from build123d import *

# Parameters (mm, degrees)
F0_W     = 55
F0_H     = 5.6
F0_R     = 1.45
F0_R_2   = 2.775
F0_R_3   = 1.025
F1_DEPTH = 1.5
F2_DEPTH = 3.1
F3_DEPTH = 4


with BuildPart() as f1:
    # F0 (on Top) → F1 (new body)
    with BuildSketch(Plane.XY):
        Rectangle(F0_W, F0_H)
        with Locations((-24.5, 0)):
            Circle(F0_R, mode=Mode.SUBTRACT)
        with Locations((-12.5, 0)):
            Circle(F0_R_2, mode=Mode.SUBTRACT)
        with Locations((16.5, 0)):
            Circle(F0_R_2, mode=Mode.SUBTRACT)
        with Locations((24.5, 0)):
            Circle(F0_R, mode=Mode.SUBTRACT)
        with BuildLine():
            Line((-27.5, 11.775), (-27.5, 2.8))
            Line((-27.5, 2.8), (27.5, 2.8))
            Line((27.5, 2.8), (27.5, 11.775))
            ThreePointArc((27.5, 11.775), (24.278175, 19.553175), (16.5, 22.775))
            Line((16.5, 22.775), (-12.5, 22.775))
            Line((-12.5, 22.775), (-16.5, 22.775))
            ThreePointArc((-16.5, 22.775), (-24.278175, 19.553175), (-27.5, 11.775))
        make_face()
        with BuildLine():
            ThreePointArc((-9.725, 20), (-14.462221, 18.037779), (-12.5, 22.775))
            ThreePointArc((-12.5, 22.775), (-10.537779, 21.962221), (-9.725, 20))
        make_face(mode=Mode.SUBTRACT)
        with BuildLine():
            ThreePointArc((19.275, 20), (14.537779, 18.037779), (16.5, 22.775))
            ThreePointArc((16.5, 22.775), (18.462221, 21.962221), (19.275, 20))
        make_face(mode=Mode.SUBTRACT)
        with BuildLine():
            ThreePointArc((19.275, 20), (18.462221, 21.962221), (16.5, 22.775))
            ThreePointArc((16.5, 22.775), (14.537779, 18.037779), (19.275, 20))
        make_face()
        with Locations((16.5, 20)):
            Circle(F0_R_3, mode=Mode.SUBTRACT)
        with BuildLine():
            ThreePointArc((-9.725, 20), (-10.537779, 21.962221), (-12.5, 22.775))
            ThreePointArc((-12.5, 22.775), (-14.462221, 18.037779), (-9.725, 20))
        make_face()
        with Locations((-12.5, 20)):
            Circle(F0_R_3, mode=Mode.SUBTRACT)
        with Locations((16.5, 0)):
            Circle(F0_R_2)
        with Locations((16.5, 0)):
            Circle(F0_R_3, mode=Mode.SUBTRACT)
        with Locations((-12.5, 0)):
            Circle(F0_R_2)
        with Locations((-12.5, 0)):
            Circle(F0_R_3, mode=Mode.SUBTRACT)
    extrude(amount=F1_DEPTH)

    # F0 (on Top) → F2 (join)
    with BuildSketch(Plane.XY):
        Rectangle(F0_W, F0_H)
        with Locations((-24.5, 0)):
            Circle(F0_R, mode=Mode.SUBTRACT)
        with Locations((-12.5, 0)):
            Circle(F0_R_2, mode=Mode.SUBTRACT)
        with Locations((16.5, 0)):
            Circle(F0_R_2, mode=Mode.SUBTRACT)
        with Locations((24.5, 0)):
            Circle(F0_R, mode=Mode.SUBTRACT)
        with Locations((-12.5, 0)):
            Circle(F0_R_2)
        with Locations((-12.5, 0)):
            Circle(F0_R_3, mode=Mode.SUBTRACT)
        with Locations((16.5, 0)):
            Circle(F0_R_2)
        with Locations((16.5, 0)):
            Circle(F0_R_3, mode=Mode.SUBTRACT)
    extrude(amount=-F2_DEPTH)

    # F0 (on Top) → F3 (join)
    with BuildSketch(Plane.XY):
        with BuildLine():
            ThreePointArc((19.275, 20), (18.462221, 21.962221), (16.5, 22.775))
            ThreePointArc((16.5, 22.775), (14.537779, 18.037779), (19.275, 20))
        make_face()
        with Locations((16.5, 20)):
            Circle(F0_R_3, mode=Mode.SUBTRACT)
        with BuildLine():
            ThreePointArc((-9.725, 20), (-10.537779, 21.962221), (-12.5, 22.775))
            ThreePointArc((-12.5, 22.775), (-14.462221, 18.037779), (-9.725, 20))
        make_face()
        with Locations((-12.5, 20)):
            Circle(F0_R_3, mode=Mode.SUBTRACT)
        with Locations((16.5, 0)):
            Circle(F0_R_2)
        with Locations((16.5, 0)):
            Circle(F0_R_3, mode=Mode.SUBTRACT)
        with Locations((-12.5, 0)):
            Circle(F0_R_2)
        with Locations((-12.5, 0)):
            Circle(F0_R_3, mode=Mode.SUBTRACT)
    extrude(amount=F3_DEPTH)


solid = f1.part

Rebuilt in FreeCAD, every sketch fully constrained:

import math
import FreeCAD as App
import Part
import Sketcher
from FreeCAD import Vector

doc = App.newDocument("Part")
body = doc.addObject("PartDesign::Body", "Body")

sketch1 = body.newObject("Sketcher::SketchObject", "Sketch")
sketch1.AttachmentSupport = (doc.getObject("XY_Plane"), [""])
sketch1.MapMode = "FlatFace"
sketch1.addGeometry(Part.ArcOfCircle(Part.Circle(Vector(16.5, 11.8, 0), Vector(0, 0, 1), 11), math.radians(0), math.radians(90)), False)
sketch1.addGeometry(Part.LineSegment(Vector(16.5, 22.8, 0), Vector(-16.5, 22.8, 0)), False)
sketch1.addGeometry(Part.ArcOfCircle(Part.Circle(Vector(-16.5, 11.8, 0), Vector(0, 0, 1), 11), math.radians(90), math.radians(180)), False)
sketch1.addGeometry(Part.LineSegment(Vector(-27.5, 11.8, 0), Vector(-27.5, -2.8, 0)), False)
sketch1.addGeometry(Part.LineSegment(Vector(-27.5, -2.8, 0), Vector(27.5, -2.8, 0)), False)
sketch1.addGeometry(Part.LineSegment(Vector(27.5, -2.8, 0), Vector(27.5, 11.8, 0)), False)
sketch1.addGeometry(Part.Circle(Vector(-24.5, 0, 0), Vector(0, 0, 1), 1.4), False)
sketch1.addGeometry(Part.Circle(Vector(-12.5, 0, 0), Vector(0, 0, 1), 1), False)
sketch1.addGeometry(Part.Circle(Vector(16.5, 0, 0), Vector(0, 0, 1), 1), False)
sketch1.addGeometry(Part.Circle(Vector(24.5, 0, 0), Vector(0, 0, 1), 1.4), False)
sketch1.addGeometry(Part.Circle(Vector(-12.5, 20, 0), Vector(0, 0, 1), 1), False)
sketch1.addGeometry(Part.Circle(Vector(16.5, 20, 0), Vector(0, 0, 1), 1), False)
sketch1.addConstraint(Sketcher.Constraint("Tangent", 0, 2, 1, 1))
sketch1.addConstraint(Sketcher.Constraint("Tangent", 1, 2, 2, 1))
sketch1.addConstraint(Sketcher.Constraint("Tangent", 2, 2, 3, 1))
sketch1.addConstraint(Sketcher.Constraint("Coincident", 3, 2, 4, 1))
sketch1.addConstraint(Sketcher.Constraint("Coincident", 4, 2, 5, 1))
sketch1.addConstraint(Sketcher.Constraint("Tangent", 5, 2, 0, 1))
sketch1.addConstraint(Sketcher.Constraint("Horizontal", 1))
sketch1.addConstraint(Sketcher.Constraint("Vertical", 3))
sketch1.addConstraint(Sketcher.Constraint("Horizontal", 4))
sketch1.addConstraint(Sketcher.Constraint("Vertical", 5))
sketch1.addConstraint(Sketcher.Constraint("Equal", 0, 2))
sketch1.addConstraint(Sketcher.Constraint("Equal", 7, 8))
sketch1.addConstraint(Sketcher.Constraint("Equal", 6, 9))
sketch1.addConstraint(Sketcher.Constraint("Equal", 8, 10))
sketch1.addConstraint(Sketcher.Constraint("Equal", 10, 11))
sketch1.addConstraint(Sketcher.Constraint("Symmetric", 6, 3, 9, 3, -1, 1))
sketch1.addConstraint(Sketcher.Constraint("PointOnObject", 6, 3, -1))
sketch1.addConstraint(Sketcher.Constraint("PointOnObject", 7, 3, -1))
sketch1.addConstraint(Sketcher.Constraint("PointOnObject", 8, 3, -1))
sketch1.addConstraint(Sketcher.Constraint("Horizontal", 10, 3, 11, 3))
sketch1.addConstraint(Sketcher.Constraint("Vertical", 0, 3, 8, 3))
sketch1.addConstraint(Sketcher.Constraint("Vertical", 7, 3, 10, 3))
sketch1.addConstraint(Sketcher.Constraint("Vertical", 8, 3, 11, 3))
sketch1.addConstraint(Sketcher.Constraint("Radius", 0, 10.999999))
sketch1.addConstraint(Sketcher.Constraint("Diameter", 6, 2.9))
sketch1.addConstraint(Sketcher.Constraint("Diameter", 7, 2.05))
sketch1.addConstraint(Sketcher.Constraint("DistanceX", 1, 2, 1, 1, 33.0))
sketch1.addConstraint(Sketcher.Constraint("DistanceY", -1, 1, 10, 3, 20.0))
sketch1.addConstraint(Sketcher.Constraint("DistanceX", 6, 3, 2, 3, 7.999999))
sketch1.addConstraint(Sketcher.Constraint("DistanceX", 6, 3, 7, 3, 12.0))
sketch1.addConstraint(Sketcher.Constraint("DistanceX", 8, 3, 9, 3, 8.0))
sketch1.addConstraint(Sketcher.Constraint("DistanceY", 3, 2, -1, 1, 2.8))
sketch1.addConstraint(Sketcher.Constraint("DistanceY", 3, 2, 3, 1, 14.575))
pad1 = body.newObject("PartDesign::Pad", "Pad")
pad1.Profile = sketch1
pad1.Length = 1.5

sketch2 = body.newObject("Sketcher::SketchObject", "Sketch001")
sketch2.AttachmentSupport = (doc.getObject("XY_Plane"), [""])
sketch2.MapMode = "FlatFace"
sketch2.addGeometry(Part.LineSegment(Vector(-27.5, 2.8, 0), Vector(-27.5, -2.8, 0)), False)
sketch2.addGeometry(Part.LineSegment(Vector(-27.5, -2.8, 0), Vector(27.5, -2.8, 0)), False)
sketch2.addGeometry(Part.LineSegment(Vector(27.5, -2.8, 0), Vector(27.5, 2.8, 0)), False)
sketch2.addGeometry(Part.LineSegment(Vector(27.5, 2.8, 0), Vector(-27.5, 2.8, 0)), False)
sketch2.addGeometry(Part.Circle(Vector(-24.5, 0, 0), Vector(0, 0, 1), 1.4), False)
sketch2.addGeometry(Part.Circle(Vector(-12.5, 0, 0), Vector(0, 0, 1), 1), False)
sketch2.addGeometry(Part.Circle(Vector(16.5, 0, 0), Vector(0, 0, 1), 1), False)
sketch2.addGeometry(Part.Circle(Vector(24.5, 0, 0), Vector(0, 0, 1), 1.4), False)
sketch2.addConstraint(Sketcher.Constraint("Coincident", 0, 2, 1, 1))
sketch2.addConstraint(Sketcher.Constraint("Coincident", 1, 2, 2, 1))
sketch2.addConstraint(Sketcher.Constraint("Coincident", 2, 2, 3, 1))
sketch2.addConstraint(Sketcher.Constraint("Coincident", 3, 2, 0, 1))
sketch2.addConstraint(Sketcher.Constraint("Vertical", 0))
sketch2.addConstraint(Sketcher.Constraint("Horizontal", 1))
sketch2.addConstraint(Sketcher.Constraint("Vertical", 2))
sketch2.addConstraint(Sketcher.Constraint("Horizontal", 3))
sketch2.addConstraint(Sketcher.Constraint("Equal", 5, 6))
sketch2.addConstraint(Sketcher.Constraint("Equal", 4, 7))
sketch2.addConstraint(Sketcher.Constraint("Symmetric", 4, 3, 7, 3, -1, 1))
sketch2.addConstraint(Sketcher.Constraint("Symmetric", 0, 2, 2, 2, -1, 1))
sketch2.addConstraint(Sketcher.Constraint("PointOnObject", 4, 3, -1))
sketch2.addConstraint(Sketcher.Constraint("PointOnObject", 5, 3, -1))
sketch2.addConstraint(Sketcher.Constraint("PointOnObject", 6, 3, -1))
sketch2.addConstraint(Sketcher.Constraint("Diameter", 4, 2.9))
sketch2.addConstraint(Sketcher.Constraint("Diameter", 5, 2.05))
sketch2.addConstraint(Sketcher.Constraint("DistanceX", 1, 1, 1, 2, 55.0))
sketch2.addConstraint(Sketcher.Constraint("DistanceY", 0, 2, 0, 1, 5.6))
sketch2.addConstraint(Sketcher.Constraint("DistanceX", 4, 3, 5, 3, 12.0))
sketch2.addConstraint(Sketcher.Constraint("DistanceX", 5, 3, 6, 3, 29.0))
sketch2.addConstraint(Sketcher.Constraint("DistanceX", 6, 3, 7, 3, 8.0))
pad2 = body.newObject("PartDesign::Pad", "Pad001")
pad2.Profile = sketch2
pad2.Length = 3.1
pad2.Reversed = True

sketch3 = body.newObject("Sketcher::SketchObject", "Sketch002")
sketch3.AttachmentSupport = (doc.getObject("XY_Plane"), [""])
sketch3.MapMode = "FlatFace"
sketch3.addGeometry(Part.ArcOfCircle(Part.Circle(Vector(16.5, 20, 0), Vector(0, 0, 1), 2.8), math.radians(0), math.radians(90)), False)
sketch3.addGeometry(Part.ArcOfCircle(Part.Circle(Vector(16.5, 20, 0), Vector(0, 0, 1), 2.8), math.radians(90), math.radians(360)), False)
sketch3.addGeometry(Part.Circle(Vector(16.5, 20, 0), Vector(0, 0, 1), 1), False)
sketch3.addGeometry(Part.ArcOfCircle(Part.Circle(Vector(-12.5, 20, 0), Vector(0, 0, 1), 2.8), math.radians(0), math.radians(90)), False)
sketch3.addGeometry(Part.ArcOfCircle(Part.Circle(Vector(-12.5, 20, 0), Vector(0, 0, 1), 2.8), math.radians(90), math.radians(360)), False)
sketch3.addGeometry(Part.Circle(Vector(-12.5, 20, 0), Vector(0, 0, 1), 1), False)
sketch3.addGeometry(Part.Circle(Vector(16.5, 0, 0), Vector(0, 0, 1), 2.8), False)
sketch3.addGeometry(Part.Circle(Vector(16.5, 0, 0), Vector(0, 0, 1), 1), False)
sketch3.addGeometry(Part.Circle(Vector(-12.5, 0, 0), Vector(0, 0, 1), 2.8), False)
sketch3.addGeometry(Part.Circle(Vector(-12.5, 0, 0), Vector(0, 0, 1), 1), False)
sketch3.addConstraint(Sketcher.Constraint("Tangent", 0, 1, 1, 2))
sketch3.addConstraint(Sketcher.Constraint("Coincident", 1, 1, 0, 2))
sketch3.addConstraint(Sketcher.Constraint("Tangent", 3, 1, 4, 2))
sketch3.addConstraint(Sketcher.Constraint("Coincident", 4, 1, 3, 2))
sketch3.addConstraint(Sketcher.Constraint("Coincident", 2, 3, 0, 3))
sketch3.addConstraint(Sketcher.Constraint("Coincident", 5, 3, 3, 3))
sketch3.addConstraint(Sketcher.Constraint("Coincident", 7, 3, 6, 3))
sketch3.addConstraint(Sketcher.Constraint("Coincident", 9, 3, 8, 3))
sketch3.addConstraint(Sketcher.Constraint("Equal", 1, 3))
sketch3.addConstraint(Sketcher.Constraint("Equal", 2, 5))
sketch3.addConstraint(Sketcher.Constraint("Equal", 4, 6))
sketch3.addConstraint(Sketcher.Constraint("Equal", 5, 7))
sketch3.addConstraint(Sketcher.Constraint("Equal", 6, 8))
sketch3.addConstraint(Sketcher.Constraint("Equal", 7, 9))
sketch3.addConstraint(Sketcher.Constraint("PointOnObject", 6, 3, -1))
sketch3.addConstraint(Sketcher.Constraint("PointOnObject", 8, 3, -1))
sketch3.addConstraint(Sketcher.Constraint("Horizontal", 2, 3, 3, 3))
sketch3.addConstraint(Sketcher.Constraint("Horizontal", 5, 3, 0, 1))
sketch3.addConstraint(Sketcher.Constraint("Horizontal", 0, 1, 3, 1))
sketch3.addConstraint(Sketcher.Constraint("Vertical", 2, 3, 6, 3))
sketch3.addConstraint(Sketcher.Constraint("Vertical", 5, 3, 8, 3))
sketch3.addConstraint(Sketcher.Constraint("Vertical", 7, 3, 1, 1))
sketch3.addConstraint(Sketcher.Constraint("Vertical", 9, 3, 4, 1))
sketch3.addConstraint(Sketcher.Constraint("Diameter", 2, 2.05))
sketch3.addConstraint(Sketcher.Constraint("Diameter", 6, 5.55))
sketch3.addConstraint(Sketcher.Constraint("DistanceY", -1, 1, 0, 3, 19.999999))
sketch3.addConstraint(Sketcher.Constraint("DistanceX", 3, 3, 0, 3, 29.0))
sketch3.addConstraint(Sketcher.Constraint("DistanceX", -1, 1, 0, 3, 16.499999))
pad3 = body.newObject("PartDesign::Pad", "Pad002")
pad3.Profile = sketch3
pad3.Length = 4

doc.recompute()
